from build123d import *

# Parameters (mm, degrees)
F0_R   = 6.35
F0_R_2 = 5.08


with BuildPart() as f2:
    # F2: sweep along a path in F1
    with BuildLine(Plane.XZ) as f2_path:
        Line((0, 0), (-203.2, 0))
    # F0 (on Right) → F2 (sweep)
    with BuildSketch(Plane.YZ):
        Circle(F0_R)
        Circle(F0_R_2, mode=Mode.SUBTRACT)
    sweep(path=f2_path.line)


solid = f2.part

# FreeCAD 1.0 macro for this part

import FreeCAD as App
import Part
import Sketcher
from FreeCAD import Vector
Q = App.Units.Quantity

doc = App.newDocument("Part")
params = doc.addObject("Spreadsheet::Sheet", "Params")
for row, (alias, value) in enumerate([
    ("sketch1_diameter", "0.5 in"),
    ("sketch1_diameter2", "0.4 in"),
    ("sketch2_width", "8 in"),
], start=1):
    params.set(f"A{row}", alias)
    params.set(f"B{row}", "=" + value)
    params.setAlias(f"B{row}", alias)

body = doc.addObject("PartDesign::Body", "Body")

# Sketch on YZ plane
sketch1 = body.newObject("Sketcher::SketchObject", "Sketch")
sketch1.AttachmentSupport = (doc.getObject("YZ_Plane"), [""])
sketch1.MapMode = "FlatFace"
sketch1.addGeometry(Part.Circle(Vector(0, 0, 0), Vector(0, 0, 1), 6), False)
sketch1.addGeometry(Part.Circle(Vector(0, 0, 0), Vector(0, 0, 1), 5), False)
sketch1.addConstraint(Sketcher.Constraint("Coincident", 0, 3, -1, 1))
sketch1.addConstraint(Sketcher.Constraint("Coincident", 1, 3, -1, 1))
sketch1.addConstraint(Sketcher.Constraint("Diameter", 0, Q("0.5 in")))
sketch1.addConstraint(Sketcher.Constraint("Diameter", 1, Q("0.4 in")))
sketch1.setExpression("Constraints[2]", "Params.sketch1_diameter")
sketch1.setExpression("Constraints[3]", "Params.sketch1_diameter2")

# Sketch on XY plane
sketch2 = body.newObject("Sketcher::SketchObject", "Sketch001")
sketch2.AttachmentSupport = (doc.getObject("XY_Plane"), [""])
sketch2.MapMode = "FlatFace"
sketch2.addGeometry(Part.LineSegment(Vector(0, 0, 0), Vector(-203, 0, 0)), False)
sketch2.addConstraint(Sketcher.Constraint("Horizontal", 0))
sketch2.addConstraint(Sketcher.Constraint("Coincident", 0, 1, -1, 1))
sketch2.addConstraint(Sketcher.Constraint("DistanceX", 0, 2, 0, 1, Q("8 in")))
sketch2.setExpression("Constraints[2]", "Params.sketch2_width")
doc.recompute()

additivepipe = body.newObject("PartDesign::AdditivePipe", "AdditivePipe")
additivepipe.Profile = sketch1
additivepipe.Spine = (sketch2, ["Edge1"])

doc.recompute()
